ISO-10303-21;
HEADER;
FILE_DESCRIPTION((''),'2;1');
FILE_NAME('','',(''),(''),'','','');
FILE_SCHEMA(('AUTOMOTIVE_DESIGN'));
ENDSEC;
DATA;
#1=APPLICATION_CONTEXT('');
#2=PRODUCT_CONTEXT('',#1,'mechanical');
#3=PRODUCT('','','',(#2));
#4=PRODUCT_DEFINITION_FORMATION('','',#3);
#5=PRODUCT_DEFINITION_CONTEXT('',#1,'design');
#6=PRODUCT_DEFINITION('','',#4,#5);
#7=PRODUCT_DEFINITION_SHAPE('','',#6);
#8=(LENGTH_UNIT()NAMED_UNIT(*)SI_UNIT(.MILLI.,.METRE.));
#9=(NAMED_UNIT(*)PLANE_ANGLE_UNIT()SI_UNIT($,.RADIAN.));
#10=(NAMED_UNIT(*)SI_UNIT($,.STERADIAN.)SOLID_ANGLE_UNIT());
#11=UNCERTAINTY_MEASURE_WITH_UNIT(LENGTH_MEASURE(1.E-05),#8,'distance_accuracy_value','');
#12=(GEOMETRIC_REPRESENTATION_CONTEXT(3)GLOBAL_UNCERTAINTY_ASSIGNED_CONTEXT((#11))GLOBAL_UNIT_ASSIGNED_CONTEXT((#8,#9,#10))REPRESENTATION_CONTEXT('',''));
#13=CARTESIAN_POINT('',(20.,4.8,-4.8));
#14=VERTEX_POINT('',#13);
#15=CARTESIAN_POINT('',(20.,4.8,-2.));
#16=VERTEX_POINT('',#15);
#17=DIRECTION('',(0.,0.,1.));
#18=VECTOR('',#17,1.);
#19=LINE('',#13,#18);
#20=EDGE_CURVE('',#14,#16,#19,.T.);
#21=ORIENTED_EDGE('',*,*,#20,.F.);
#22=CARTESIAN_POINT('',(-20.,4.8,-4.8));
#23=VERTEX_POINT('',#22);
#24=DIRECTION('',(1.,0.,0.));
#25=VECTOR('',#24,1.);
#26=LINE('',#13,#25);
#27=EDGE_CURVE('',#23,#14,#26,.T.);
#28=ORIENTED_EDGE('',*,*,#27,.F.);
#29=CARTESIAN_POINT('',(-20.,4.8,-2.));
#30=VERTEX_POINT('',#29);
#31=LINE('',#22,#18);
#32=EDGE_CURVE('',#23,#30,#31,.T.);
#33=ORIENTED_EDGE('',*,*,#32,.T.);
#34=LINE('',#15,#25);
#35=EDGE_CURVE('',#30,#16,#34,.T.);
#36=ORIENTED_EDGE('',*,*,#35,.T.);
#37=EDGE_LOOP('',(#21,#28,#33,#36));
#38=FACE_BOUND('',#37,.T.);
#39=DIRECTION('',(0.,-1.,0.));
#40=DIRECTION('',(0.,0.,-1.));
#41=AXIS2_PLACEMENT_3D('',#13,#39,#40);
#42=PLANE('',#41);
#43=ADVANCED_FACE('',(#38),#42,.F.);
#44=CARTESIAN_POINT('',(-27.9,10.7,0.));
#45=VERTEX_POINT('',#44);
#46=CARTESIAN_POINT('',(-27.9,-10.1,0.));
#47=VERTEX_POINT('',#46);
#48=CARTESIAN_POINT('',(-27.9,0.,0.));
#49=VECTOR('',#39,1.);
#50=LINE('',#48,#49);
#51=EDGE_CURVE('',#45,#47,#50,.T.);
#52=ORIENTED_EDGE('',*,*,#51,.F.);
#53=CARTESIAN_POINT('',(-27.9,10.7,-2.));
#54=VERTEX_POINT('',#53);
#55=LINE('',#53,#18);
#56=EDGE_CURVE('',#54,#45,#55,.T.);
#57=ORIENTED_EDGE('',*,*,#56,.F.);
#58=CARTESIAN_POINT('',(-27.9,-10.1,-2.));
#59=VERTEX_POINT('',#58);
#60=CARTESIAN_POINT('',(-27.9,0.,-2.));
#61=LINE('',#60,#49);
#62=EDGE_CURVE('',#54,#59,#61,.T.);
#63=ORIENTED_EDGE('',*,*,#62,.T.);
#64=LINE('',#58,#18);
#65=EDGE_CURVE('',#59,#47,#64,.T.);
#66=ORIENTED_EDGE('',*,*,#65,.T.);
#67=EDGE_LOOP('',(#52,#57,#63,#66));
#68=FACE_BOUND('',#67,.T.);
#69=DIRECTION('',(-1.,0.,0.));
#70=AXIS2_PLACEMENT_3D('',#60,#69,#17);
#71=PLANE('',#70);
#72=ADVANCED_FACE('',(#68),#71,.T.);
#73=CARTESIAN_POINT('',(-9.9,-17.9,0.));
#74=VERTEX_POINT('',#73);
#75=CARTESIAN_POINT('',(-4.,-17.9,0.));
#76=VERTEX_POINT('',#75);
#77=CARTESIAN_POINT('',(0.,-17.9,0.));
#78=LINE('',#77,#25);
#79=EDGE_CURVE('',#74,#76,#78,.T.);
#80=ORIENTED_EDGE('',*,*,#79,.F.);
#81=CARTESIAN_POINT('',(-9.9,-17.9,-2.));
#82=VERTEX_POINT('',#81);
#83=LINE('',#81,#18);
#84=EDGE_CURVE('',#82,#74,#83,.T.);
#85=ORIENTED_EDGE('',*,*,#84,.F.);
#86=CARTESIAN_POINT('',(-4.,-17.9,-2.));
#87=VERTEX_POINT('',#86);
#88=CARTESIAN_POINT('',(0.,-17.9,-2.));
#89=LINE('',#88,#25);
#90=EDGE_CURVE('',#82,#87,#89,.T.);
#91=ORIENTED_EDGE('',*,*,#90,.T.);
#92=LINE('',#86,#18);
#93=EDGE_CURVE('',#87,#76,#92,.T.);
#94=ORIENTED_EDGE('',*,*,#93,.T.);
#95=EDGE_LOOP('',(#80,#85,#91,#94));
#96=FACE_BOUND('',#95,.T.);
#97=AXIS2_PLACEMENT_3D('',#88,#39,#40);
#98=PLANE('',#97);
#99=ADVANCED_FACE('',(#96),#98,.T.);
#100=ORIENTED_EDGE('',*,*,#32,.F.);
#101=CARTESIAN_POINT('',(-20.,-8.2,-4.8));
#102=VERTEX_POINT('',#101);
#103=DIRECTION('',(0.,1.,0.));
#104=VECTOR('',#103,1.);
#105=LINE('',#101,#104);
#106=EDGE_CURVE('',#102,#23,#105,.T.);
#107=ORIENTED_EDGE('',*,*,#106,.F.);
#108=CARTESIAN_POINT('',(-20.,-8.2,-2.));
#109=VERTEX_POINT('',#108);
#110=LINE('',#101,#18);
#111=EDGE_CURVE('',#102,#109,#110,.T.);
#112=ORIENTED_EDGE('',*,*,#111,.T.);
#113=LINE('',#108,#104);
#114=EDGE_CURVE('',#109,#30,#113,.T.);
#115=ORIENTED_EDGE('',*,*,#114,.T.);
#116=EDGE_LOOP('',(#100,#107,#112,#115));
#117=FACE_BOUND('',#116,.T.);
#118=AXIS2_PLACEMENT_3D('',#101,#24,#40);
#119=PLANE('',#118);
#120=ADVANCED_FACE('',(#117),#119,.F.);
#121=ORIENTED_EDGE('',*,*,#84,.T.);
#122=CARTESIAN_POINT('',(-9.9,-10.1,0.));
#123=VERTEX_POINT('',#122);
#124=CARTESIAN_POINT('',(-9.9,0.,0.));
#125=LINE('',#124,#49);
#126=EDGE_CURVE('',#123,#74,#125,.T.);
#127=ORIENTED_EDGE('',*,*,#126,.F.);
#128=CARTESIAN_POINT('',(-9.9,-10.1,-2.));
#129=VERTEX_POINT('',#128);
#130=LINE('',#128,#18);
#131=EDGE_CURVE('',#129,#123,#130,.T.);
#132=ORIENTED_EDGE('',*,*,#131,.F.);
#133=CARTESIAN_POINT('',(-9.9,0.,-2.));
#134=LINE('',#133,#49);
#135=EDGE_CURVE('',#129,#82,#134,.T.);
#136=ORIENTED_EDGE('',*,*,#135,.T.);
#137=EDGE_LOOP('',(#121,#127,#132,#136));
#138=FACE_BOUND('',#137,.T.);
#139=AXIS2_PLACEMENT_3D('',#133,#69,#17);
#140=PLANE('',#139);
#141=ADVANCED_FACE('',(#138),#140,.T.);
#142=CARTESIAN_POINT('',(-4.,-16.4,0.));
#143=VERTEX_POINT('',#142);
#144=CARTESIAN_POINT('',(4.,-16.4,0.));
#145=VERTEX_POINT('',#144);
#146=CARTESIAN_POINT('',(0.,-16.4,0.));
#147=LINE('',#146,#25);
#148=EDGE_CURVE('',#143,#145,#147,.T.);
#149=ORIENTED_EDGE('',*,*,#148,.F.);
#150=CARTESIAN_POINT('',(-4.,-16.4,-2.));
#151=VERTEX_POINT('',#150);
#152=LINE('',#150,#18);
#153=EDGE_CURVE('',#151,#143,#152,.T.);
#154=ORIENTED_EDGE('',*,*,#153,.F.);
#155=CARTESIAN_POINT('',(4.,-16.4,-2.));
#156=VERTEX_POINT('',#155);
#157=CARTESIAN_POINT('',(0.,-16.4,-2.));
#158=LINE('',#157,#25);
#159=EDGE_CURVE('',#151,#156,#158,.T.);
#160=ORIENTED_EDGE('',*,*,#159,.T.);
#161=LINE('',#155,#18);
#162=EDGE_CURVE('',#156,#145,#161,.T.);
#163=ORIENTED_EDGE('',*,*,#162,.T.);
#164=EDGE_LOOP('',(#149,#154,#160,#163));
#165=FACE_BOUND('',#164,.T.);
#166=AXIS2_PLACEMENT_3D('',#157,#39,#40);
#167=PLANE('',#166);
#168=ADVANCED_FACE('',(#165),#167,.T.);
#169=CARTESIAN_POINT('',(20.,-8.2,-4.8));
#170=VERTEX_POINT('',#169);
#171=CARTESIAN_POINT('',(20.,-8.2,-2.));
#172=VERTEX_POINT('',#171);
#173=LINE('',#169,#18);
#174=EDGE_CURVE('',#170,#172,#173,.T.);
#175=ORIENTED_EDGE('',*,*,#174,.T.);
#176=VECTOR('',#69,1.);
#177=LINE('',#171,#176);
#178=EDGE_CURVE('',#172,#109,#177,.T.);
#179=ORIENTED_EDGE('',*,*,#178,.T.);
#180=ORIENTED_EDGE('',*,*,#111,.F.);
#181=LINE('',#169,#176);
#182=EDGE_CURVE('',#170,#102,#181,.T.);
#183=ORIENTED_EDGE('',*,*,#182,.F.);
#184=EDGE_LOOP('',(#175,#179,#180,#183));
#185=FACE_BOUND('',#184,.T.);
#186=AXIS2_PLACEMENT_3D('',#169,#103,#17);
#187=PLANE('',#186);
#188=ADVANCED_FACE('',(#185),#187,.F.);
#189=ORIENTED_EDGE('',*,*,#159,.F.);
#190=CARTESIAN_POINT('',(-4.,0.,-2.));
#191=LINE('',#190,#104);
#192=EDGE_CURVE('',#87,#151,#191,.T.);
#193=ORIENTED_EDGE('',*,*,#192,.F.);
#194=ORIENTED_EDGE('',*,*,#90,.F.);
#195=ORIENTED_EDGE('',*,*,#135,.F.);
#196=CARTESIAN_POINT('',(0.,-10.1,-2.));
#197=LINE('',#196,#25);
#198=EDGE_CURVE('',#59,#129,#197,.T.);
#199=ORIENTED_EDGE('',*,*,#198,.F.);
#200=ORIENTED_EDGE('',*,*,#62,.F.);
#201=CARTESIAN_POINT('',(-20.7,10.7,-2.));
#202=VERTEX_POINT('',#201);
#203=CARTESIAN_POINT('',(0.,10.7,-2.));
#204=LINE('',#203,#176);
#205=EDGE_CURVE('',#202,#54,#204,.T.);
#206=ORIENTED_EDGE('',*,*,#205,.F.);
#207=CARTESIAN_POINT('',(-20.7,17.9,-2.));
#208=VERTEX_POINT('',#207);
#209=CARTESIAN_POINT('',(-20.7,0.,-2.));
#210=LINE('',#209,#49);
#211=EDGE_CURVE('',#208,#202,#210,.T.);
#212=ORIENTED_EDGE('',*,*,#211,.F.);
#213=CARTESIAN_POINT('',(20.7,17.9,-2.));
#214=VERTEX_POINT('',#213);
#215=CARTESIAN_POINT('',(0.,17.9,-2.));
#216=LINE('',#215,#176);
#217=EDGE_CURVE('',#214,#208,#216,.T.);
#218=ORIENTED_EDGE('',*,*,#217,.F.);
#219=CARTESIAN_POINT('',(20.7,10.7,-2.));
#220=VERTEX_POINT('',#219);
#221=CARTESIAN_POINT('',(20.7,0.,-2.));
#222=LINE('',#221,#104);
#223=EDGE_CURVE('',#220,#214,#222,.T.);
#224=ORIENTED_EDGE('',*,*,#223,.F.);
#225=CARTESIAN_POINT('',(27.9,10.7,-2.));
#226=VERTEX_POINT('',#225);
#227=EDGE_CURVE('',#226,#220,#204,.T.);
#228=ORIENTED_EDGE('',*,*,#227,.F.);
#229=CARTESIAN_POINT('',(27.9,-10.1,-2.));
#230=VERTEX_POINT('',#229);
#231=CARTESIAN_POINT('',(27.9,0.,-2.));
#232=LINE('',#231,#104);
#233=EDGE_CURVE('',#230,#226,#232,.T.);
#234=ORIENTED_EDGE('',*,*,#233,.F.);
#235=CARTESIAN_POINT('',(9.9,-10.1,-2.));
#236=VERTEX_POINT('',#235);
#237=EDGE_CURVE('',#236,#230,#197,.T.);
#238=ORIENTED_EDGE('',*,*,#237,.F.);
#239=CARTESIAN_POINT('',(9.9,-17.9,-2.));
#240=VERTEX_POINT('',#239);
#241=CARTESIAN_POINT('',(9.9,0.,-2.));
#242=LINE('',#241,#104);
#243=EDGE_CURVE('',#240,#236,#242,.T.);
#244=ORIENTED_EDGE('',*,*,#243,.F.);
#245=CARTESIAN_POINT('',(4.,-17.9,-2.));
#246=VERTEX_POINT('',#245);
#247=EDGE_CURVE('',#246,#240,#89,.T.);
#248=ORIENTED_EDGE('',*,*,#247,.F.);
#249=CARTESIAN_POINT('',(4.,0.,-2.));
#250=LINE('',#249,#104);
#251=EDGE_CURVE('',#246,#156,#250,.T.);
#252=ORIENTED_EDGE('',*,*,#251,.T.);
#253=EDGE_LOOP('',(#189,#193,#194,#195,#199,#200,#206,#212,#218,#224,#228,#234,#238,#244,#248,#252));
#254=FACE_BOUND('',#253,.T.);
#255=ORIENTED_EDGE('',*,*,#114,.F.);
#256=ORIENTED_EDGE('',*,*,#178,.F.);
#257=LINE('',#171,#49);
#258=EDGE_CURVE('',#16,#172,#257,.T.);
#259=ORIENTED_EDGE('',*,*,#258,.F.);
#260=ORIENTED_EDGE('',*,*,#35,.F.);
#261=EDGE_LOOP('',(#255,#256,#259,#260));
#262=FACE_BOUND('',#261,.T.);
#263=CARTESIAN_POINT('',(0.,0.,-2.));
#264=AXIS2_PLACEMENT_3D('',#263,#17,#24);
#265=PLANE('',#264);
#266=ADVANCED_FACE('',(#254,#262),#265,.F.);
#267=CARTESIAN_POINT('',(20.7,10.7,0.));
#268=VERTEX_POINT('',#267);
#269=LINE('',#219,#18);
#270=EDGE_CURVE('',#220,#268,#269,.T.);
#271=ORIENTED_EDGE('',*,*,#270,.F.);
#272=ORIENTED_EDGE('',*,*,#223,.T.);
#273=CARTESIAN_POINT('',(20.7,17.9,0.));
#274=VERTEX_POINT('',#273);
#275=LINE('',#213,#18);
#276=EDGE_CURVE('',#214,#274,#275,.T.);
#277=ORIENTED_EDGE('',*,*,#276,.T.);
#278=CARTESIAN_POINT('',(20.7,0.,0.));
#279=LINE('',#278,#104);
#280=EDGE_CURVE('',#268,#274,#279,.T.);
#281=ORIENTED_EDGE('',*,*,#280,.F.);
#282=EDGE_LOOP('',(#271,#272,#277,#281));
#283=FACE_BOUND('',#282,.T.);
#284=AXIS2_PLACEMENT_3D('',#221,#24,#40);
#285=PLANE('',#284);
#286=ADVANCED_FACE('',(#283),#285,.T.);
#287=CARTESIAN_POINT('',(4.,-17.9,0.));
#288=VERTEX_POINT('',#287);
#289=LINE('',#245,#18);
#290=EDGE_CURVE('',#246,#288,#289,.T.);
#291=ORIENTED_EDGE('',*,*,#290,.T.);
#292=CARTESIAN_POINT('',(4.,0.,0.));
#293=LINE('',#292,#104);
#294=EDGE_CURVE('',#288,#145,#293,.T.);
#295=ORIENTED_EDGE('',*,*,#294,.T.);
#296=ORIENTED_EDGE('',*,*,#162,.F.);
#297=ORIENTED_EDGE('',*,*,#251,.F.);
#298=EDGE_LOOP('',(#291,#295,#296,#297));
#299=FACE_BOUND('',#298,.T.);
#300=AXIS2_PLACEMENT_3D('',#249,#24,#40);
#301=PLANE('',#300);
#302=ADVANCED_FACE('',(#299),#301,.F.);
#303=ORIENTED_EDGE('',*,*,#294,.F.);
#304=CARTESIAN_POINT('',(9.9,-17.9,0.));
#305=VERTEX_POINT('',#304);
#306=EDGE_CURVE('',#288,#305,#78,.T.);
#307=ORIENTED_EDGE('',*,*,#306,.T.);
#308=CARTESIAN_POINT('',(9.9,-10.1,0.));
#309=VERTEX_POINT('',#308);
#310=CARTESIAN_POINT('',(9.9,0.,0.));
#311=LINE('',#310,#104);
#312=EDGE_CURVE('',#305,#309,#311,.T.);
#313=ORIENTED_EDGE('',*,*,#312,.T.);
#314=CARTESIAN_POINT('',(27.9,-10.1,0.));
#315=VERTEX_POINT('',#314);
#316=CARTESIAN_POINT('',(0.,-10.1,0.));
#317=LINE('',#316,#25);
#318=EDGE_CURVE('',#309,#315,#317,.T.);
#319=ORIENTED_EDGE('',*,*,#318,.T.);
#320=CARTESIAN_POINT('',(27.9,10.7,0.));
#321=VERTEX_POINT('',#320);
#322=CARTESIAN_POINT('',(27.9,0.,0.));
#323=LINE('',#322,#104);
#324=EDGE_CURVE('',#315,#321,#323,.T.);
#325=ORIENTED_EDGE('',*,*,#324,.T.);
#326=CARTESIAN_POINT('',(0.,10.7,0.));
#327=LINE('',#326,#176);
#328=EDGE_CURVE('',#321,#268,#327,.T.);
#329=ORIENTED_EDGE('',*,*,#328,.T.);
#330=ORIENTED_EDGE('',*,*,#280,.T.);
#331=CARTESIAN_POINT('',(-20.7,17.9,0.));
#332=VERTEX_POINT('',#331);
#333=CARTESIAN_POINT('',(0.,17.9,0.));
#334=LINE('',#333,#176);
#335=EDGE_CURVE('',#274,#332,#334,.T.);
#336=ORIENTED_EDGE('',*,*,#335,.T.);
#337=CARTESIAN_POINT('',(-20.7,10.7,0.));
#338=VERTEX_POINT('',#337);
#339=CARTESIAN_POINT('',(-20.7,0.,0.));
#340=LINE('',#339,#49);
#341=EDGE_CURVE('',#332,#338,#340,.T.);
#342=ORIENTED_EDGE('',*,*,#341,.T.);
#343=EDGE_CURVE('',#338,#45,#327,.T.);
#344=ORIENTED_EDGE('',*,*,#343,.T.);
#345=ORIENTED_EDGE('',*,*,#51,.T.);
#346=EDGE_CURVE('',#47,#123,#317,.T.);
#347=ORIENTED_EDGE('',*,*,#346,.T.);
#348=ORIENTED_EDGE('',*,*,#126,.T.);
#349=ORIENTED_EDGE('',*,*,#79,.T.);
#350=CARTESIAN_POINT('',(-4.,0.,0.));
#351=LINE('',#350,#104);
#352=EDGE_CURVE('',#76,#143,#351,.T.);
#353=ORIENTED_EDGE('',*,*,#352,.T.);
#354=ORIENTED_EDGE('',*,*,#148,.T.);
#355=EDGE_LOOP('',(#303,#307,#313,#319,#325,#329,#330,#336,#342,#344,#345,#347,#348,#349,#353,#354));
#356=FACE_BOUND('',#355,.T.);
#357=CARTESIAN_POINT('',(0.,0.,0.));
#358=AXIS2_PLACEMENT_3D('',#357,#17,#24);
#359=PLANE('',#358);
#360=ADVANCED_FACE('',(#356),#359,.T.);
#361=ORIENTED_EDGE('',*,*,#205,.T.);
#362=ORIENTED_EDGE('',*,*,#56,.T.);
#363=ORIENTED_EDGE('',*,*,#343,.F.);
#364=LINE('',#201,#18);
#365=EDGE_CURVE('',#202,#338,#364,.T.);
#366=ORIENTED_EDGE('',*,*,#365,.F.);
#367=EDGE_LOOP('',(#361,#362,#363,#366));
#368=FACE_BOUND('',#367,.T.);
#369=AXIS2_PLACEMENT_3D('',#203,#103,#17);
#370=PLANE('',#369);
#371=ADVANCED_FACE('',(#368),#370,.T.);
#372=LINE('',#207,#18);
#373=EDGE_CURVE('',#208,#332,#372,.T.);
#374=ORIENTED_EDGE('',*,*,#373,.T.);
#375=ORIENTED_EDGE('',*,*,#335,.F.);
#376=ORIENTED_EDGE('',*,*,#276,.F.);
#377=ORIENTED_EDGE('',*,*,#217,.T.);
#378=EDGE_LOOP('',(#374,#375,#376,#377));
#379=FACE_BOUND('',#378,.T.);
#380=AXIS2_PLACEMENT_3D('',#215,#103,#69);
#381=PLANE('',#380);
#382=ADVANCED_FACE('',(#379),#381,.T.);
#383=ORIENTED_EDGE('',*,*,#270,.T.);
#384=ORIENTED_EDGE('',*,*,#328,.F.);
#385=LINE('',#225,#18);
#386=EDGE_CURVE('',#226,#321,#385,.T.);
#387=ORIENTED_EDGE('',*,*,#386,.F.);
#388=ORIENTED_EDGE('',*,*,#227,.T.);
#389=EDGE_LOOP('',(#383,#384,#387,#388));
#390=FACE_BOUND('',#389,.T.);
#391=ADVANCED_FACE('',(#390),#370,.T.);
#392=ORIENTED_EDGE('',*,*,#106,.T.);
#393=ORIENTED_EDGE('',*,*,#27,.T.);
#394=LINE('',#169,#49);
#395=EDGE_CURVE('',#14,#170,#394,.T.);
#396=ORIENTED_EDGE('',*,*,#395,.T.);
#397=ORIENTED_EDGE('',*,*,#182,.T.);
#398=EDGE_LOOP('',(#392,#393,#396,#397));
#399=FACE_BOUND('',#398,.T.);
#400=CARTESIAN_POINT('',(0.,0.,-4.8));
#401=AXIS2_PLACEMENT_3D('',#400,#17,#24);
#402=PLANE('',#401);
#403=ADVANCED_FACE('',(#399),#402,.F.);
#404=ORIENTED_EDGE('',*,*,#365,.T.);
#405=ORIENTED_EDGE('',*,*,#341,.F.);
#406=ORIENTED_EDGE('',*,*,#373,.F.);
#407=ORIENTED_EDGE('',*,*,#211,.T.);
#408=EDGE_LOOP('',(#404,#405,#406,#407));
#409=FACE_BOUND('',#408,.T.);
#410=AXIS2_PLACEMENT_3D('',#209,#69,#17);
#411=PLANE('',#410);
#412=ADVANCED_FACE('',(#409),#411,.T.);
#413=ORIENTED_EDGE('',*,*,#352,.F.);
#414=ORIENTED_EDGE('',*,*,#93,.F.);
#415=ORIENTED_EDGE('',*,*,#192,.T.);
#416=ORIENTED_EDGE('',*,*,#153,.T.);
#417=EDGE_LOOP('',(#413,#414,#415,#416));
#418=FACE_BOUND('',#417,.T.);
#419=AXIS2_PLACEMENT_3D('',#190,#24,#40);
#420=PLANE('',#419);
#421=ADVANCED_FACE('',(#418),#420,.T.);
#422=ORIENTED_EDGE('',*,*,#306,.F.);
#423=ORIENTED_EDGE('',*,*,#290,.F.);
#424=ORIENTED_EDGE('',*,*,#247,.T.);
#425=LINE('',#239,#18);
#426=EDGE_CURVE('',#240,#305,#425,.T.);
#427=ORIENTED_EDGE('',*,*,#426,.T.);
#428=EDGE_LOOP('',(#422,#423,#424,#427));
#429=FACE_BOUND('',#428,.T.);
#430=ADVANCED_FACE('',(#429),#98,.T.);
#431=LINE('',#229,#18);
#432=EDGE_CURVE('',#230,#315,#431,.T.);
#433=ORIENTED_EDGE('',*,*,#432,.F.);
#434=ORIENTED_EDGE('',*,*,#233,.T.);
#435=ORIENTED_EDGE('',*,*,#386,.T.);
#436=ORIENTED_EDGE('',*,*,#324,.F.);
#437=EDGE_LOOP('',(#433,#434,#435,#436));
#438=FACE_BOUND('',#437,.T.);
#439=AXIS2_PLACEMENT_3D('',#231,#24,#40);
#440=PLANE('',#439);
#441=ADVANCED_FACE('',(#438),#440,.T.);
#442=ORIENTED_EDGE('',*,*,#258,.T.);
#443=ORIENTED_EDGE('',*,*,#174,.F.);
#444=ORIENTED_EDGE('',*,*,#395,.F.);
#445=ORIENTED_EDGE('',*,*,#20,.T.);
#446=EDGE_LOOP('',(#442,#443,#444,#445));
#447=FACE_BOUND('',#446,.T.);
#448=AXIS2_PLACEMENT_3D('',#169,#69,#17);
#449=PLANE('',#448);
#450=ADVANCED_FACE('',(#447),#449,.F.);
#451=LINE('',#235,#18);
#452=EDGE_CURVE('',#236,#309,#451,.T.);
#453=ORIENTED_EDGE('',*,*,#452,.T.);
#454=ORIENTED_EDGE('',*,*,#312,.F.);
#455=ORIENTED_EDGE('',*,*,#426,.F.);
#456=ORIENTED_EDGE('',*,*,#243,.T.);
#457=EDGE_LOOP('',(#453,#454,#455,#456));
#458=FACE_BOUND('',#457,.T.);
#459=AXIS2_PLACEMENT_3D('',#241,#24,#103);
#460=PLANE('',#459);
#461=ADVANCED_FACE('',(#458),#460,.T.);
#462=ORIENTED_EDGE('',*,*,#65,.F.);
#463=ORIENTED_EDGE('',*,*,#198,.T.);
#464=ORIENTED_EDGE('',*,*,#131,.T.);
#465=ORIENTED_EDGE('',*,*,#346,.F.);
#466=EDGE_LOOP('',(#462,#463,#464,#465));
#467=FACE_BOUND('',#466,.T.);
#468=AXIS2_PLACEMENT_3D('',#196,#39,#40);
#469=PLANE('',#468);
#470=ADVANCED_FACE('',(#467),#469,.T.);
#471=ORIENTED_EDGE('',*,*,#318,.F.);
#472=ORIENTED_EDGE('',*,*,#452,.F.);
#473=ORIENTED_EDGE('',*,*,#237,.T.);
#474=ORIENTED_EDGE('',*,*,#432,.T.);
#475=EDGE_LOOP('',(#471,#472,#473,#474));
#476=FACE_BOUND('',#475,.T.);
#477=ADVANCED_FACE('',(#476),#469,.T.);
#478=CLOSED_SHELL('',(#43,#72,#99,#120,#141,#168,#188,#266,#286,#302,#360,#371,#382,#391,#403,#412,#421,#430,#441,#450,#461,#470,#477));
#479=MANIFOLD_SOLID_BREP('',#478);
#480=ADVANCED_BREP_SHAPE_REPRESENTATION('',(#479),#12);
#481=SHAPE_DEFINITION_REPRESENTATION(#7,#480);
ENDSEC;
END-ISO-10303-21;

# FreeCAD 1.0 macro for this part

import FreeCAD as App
import Part
import Sketcher

V = App.Vector


def add_polygon(sketch, points):
    """Adds a closed chain of lines whose ends are joined by coincident constraints."""
    first, n = sketch.GeometryCount, len(points)
    for a, b in zip(points, points[1:] + points[:1]):
        sketch.addGeometry(Part.LineSegment(App.Vector(*a, 0), App.Vector(*b, 0)), False)
    for i in range(n):
        sketch.addConstraint(Sketcher.Constraint("Coincident", first + i, 2, first + (i + 1) % n, 1))

doc = App.newDocument("Part")
body = doc.addObject("PartDesign::Body", "Body")

# Sketch on XY plane
sketch1 = body.newObject("Sketcher::SketchObject", "Sketch")
sketch1.AttachmentSupport = (doc.getObject("XY_Plane"), [""])
sketch1.MapMode = "FlatFace"
add_polygon(sketch1, [(-9.9, -17.9), (-4, -17.9), (-4, -16.4), (4, -16.4), (4, -17.9), (9.9, -17.9), (9.9, -10.1), (27.9, -10.1), (27.9, 10.7), (20.7, 10.7), (20.7, 17.9), (-20.7, 17.9), (-20.7, 10.7), (-27.9, 10.7), (-27.9, -10.1), (-9.9, -10.1)])  # lines 0-15
sketch1.addConstraint(Sketcher.Constraint("Horizontal", 0))
sketch1.addConstraint(Sketcher.Constraint("Vertical", 1))
sketch1.addConstraint(Sketcher.Constraint("Horizontal", 2))
sketch1.addConstraint(Sketcher.Constraint("Vertical", 3))
sketch1.addConstraint(Sketcher.Constraint("Horizontal", 4))
sketch1.addConstraint(Sketcher.Constraint("Vertical", 5))
sketch1.addConstraint(Sketcher.Constraint("Horizontal", 6))
sketch1.addConstraint(Sketcher.Constraint("Vertical", 7))
sketch1.addConstraint(Sketcher.Constraint("Horizontal", 8))
sketch1.addConstraint(Sketcher.Constraint("Vertical", 9))
sketch1.addConstraint(Sketcher.Constraint("Horizontal", 10))
sketch1.addConstraint(Sketcher.Constraint("Vertical", 11))
sketch1.addConstraint(Sketcher.Constraint("Horizontal", 12))
sketch1.addConstraint(Sketcher.Constraint("Vertical", 13))
sketch1.addConstraint(Sketcher.Constraint("Horizontal", 14))
sketch1.addConstraint(Sketcher.Constraint("Vertical", 15))
sketch1.addConstraint(Sketcher.Constraint("Symmetric", 0, 2, 3, 2, -2))
sketch1.addConstraint(Sketcher.Constraint("Symmetric", 8, 2, 11, 2, -2))
sketch1.addConstraint(Sketcher.Constraint("Symmetric", 6, 2, 13, 2, -2))
sketch1.addConstraint(Sketcher.Constraint("Equal", 0, 4))
sketch1.addConstraint(Sketcher.Constraint("Equal", 12, 9))
sketch1.addConstraint(Sketcher.Constraint("DistanceX", 2, 1, 2, 2, 8.0))
sketch1.addConstraint(Sketcher.Constraint("DistanceX", 6, 1, 6, 2, 18.0))
sketch1.addConstraint(Sketcher.Constraint("DistanceX", 0, 1, 0, 2, 5.9))
sketch1.addConstraint(Sketcher.Constraint("DistanceX", 8, 2, 8, 1, 7.2))
sketch1.addConstraint(Sketcher.Constraint("DistanceY", 1, 1, 1, 2, 1.5))
sketch1.addConstraint(Sketcher.Constraint("DistanceY", 5, 1, 5, 2, 7.8))
sketch1.addConstraint(Sketcher.Constraint("DistanceY", 7, 1, 7, 2, 20.8))
sketch1.addConstraint(Sketcher.Constraint("DistanceY", 0, 2, -1, 1, 17.9))
pad1 = body.newObject("PartDesign::Pad", "Pad")
pad1.Profile = sketch1
pad1.Length = 2
pad1.Reversed = True

# Sketch on XY plane
sketch2 = body.newObject("Sketcher::SketchObject", "Sketch001")
sketch2.AttachmentSupport = (doc.getObject("XY_Plane"), [""])
sketch2.MapMode = "FlatFace"
sketch2.AttachmentOffset = App.Placement(V(0, 0, -2), App.Rotation())
add_polygon(sketch2, [(20, 5), (20, -8), (-20, -8), (-20, 5)])  # lines 0-3
sketch2.addConstraint(Sketcher.Constraint("Vertical", 0))
sketch2.addConstraint(Sketcher.Constraint("Horizontal", 1))
sketch2.addConstraint(Sketcher.Constraint("Vertical", 2))
sketch2.addConstraint(Sketcher.Constraint("Horizontal", 3))
sketch2.addConstraint(Sketcher.Constraint("DistanceX", 1, 2, 1, 1, 40.0))
sketch2.addConstraint(Sketcher.Constraint("DistanceY", 0, 2, 0, 1, 13.0))
sketch2.addConstraint(Sketcher.Constraint("DistanceX", -1, 1, 0, 2, 20.0))
sketch2.addConstraint(Sketcher.Constraint("DistanceY", 0, 2, -1, 1, 8.2))
pad2 = body.newObject("PartDesign::Pad", "Pad001")
pad2.Profile = sketch2
pad2.Length = 2.8
pad2.Reversed = True

doc.recompute()
